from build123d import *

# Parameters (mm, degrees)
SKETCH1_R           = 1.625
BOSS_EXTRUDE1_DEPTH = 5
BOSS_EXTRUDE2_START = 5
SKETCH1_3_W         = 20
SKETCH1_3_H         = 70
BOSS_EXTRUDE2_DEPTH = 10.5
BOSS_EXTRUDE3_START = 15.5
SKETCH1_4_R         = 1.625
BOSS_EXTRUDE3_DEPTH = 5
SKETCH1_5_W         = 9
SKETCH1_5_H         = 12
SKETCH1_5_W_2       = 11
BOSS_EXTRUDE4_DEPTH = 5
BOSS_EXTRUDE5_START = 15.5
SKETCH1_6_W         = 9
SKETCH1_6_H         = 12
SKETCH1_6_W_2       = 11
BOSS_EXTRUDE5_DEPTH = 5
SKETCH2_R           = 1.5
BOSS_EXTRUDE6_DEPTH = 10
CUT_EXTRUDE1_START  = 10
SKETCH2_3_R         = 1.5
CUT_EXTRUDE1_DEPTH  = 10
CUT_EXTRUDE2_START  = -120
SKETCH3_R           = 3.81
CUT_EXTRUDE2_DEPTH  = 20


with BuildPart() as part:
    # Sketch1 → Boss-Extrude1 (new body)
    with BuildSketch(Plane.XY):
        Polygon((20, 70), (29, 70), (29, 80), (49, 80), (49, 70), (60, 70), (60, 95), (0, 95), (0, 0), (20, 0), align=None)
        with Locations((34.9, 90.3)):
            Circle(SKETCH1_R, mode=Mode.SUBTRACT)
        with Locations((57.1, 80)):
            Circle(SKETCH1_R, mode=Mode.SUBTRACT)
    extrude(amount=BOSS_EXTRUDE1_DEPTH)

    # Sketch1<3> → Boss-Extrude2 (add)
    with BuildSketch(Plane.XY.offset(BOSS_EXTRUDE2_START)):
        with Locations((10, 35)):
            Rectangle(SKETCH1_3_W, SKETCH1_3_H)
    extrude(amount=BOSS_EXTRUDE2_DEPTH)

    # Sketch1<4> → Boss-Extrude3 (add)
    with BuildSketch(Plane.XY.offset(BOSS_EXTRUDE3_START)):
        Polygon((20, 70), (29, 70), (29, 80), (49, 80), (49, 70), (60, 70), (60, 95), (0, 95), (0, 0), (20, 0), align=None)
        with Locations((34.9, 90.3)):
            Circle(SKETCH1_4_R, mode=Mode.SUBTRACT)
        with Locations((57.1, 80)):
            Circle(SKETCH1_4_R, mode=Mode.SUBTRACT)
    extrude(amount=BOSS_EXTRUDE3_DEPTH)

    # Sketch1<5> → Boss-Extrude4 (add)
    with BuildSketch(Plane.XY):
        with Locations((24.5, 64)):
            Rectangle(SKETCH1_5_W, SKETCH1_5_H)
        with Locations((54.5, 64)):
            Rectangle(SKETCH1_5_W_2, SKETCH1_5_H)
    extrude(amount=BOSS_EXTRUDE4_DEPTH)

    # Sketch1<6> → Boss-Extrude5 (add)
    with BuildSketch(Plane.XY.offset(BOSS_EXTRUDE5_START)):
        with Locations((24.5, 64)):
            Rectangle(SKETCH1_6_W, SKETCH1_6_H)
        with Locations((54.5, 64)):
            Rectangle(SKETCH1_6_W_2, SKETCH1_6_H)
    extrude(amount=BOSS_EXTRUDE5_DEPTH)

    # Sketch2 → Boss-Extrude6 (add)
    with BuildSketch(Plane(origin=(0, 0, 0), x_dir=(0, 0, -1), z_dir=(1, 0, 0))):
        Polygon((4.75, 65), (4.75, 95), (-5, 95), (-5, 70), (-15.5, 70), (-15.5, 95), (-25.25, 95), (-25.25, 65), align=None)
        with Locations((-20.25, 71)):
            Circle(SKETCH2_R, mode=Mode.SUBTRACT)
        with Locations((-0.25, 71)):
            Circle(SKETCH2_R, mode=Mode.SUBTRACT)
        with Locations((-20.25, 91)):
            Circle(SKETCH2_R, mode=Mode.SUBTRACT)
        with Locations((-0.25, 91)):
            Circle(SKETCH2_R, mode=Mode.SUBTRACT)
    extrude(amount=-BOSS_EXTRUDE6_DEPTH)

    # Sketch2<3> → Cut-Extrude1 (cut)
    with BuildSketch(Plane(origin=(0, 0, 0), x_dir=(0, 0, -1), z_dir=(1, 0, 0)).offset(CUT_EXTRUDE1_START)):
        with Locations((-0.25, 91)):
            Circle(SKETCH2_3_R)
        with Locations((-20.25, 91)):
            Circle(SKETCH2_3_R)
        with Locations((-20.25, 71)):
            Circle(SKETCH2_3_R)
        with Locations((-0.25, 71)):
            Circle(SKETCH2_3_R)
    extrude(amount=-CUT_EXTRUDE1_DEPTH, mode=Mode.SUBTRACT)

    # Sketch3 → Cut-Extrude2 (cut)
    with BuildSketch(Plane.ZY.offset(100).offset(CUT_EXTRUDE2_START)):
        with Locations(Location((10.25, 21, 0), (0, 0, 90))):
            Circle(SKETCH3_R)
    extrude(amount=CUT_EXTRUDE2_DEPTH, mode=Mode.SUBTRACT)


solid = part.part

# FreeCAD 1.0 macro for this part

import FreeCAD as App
import Part
import Sketcher

V = App.Vector

doc = App.newDocument("Part")
params = doc.addObject("Spreadsheet::Sheet", "Params")
for row, (alias, value) in enumerate([
    ("sketch1_diameter", "3.25 mm"),
    ("sketch1_width", "9 mm"),
    ("sketch1_width2", "20 mm"),
    ("sketch1_width3", "11 mm"),
    ("sketch1_height", "10 mm"),
    ("pad1_length", "5 mm"),
    ("sketch2_width", "20 mm"),
    ("sketch2_height", "70 mm"),
    ("pad2_length", "10.5 mm"),
    ("sketch3_diameter", "3.25 mm"),
    ("sketch3_width", "9 mm"),
    ("sketch3_width2", "20 mm"),
    ("sketch3_width3", "11 mm"),
    ("sketch3_height", "10 mm"),
    ("pad3_length", "5 mm"),
    ("sketch4_width", "9 mm"),
    ("sketch4_width2", "11 mm"),
    ("sketch4_height", "12 mm"),
    ("pad4_length", "5 mm"),
    ("sketch5_width", "9 mm"),
    ("sketch5_width2", "11 mm"),
    ("sketch5_height", "12 mm"),
    ("pad5_length", "5 mm"),
    ("sketch6_diameter", "3 mm"),
    ("sketch6_width", "30 mm"),
    ("sketch6_width2", "25 mm"),
    ("sketch6_height", "10.5 mm"),
    ("pad6_length", "10 mm"),
    ("sketch7_diameter", "3 mm"),
    ("pocket1_length", "10 mm"),
    ("sketch8_diameter", "7.62 mm"),
    ("pocket2_length", "20 mm"),
], start=1):
    params.set(f"A{row}", alias)
    params.set(f"B{row}", "=" + value)
    params.setAlias(f"B{row}", alias)

body = doc.addObject("PartDesign::Body", "Body")

# Sketch on XY plane
sketch1 = body.newObject("Sketcher::SketchObject", "Sketch")
sketch1.AttachmentSupport = (doc.getObject("XY_Plane"), [""])
sketch1.MapMode = "FlatFace"
sketch1.addGeometry([
    Part.LineSegment(V(20, 70, 0), V(29, 70, 0)),  # 0
    Part.LineSegment(V(29, 70, 0), V(29, 80, 0)),  # 1
    Part.LineSegment(V(29, 80, 0), V(49, 80, 0)),  # 2
    Part.LineSegment(V(49, 80, 0), V(49, 70, 0)),  # 3
    Part.LineSegment(V(49, 70, 0), V(60, 70, 0)),  # 4
    Part.LineSegment(V(60, 70, 0), V(60, 95, 0)),  # 5
    Part.LineSegment(V(60, 95, 0), V(0, 95, 0)),  # 6
    Part.LineSegment(V(0, 95, 0), V(0, 0, 0)),  # 7
    Part.LineSegment(V(0, 0, 0), V(20, 0, 0)),  # 8
    Part.LineSegment(V(20, 0, 0), V(20, 70, 0)),  # 9
    Part.Circle(V(57.1, 80, 0), V(0, 0, 1), 1.625),  # 10
    Part.Circle(V(34.9, 90.3, 0), V(0, 0, 1), 1.625),  # 11
], False)
sketch1.addConstraint([
    Sketcher.Constraint("Coincident", 0, 2, 1, 1),
    Sketcher.Constraint("Coincident", 1, 2, 2, 1),
    Sketcher.Constraint("Coincident", 2, 2, 3, 1),
    Sketcher.Constraint("Coincident", 3, 2, 4, 1),
    Sketcher.Constraint("Coincident", 4, 2, 5, 1),
    Sketcher.Constraint("Coincident", 5, 2, 6, 1),
    Sketcher.Constraint("Coincident", 6, 2, 7, 1),
    Sketcher.Constraint("Coincident", 7, 2, 8, 1),
    Sketcher.Constraint("Coincident", 8, 2, 9, 1),
    Sketcher.Constraint("Coincident", 9, 2, 0, 1),
    Sketcher.Constraint("Horizontal", 0),
    Sketcher.Constraint("Vertical", 1),
    Sketcher.Constraint("Horizontal", 2),
    Sketcher.Constraint("Vertical", 3),
    Sketcher.Constraint("Horizontal", 4),
    Sketcher.Constraint("Vertical", 5),
    Sketcher.Constraint("Horizontal", 6),
    Sketcher.Constraint("Vertical", 7),
    Sketcher.Constraint("Horizontal", 8),
    Sketcher.Constraint("Vertical", 9),
    Sketcher.Constraint("Coincident", 7, 2, -1, 1),
    Sketcher.Constraint("Equal", 10, 11),
    Sketcher.Constraint("Horizontal", 10, 3, 1, 2),
    Sketcher.Constraint("Horizontal", 0, 2, 3, 2),
    Sketcher.Constraint("Equal", 2, 8),
    Sketcher.Constraint("Diameter", 10, 3.25),
    Sketcher.Constraint("DistanceX", 0, 1, 0, 2, 9.0),
    Sketcher.Constraint("DistanceX", 2, 1, 2, 2, 20.0),
    Sketcher.Constraint("DistanceX", 4, 1, 4, 2, 11.0),
    Sketcher.Constraint("DistanceY", 1, 1, 1, 2, 10.0),
    Sketcher.Constraint("DistanceY", 5, 1, 5, 2, 25.0),
    Sketcher.Constraint("DistanceY", 7, 2, 7, 1, 95.0),
    Sketcher.Constraint("DistanceX", -1, 1, 10, 3, 57.1),
    Sketcher.Constraint("DistanceX", -1, 1, 11, 3, 34.9),
    Sketcher.Constraint("DistanceY", -1, 1, 11, 3, 90.3),
])
sketch1.setExpression("Constraints[25]", "Params.sketch1_diameter")
sketch1.setExpression("Constraints[26]", "Params.sketch1_width")
sketch1.setExpression("Constraints[27]", "Params.sketch1_width2")
sketch1.setExpression("Constraints[28]", "Params.sketch1_width3")
sketch1.setExpression("Constraints[29]", "Params.sketch1_height")
pad1 = body.newObject("PartDesign::Pad", "Pad")
pad1.Profile = sketch1
pad1.setExpression("Length", "Params.pad1_length")

# Sketch on XY plane
sketch2 = body.newObject("Sketcher::SketchObject", "Sketch001")
sketch2.AttachmentSupport = (doc.getObject("XY_Plane"), [""])
sketch2.MapMode = "FlatFace"
sketch2.AttachmentOffset = App.Placement(V(0, 0, 5), App.Rotation())
sketch2.addGeometry([
    Part.LineSegment(V(0, 70, 0), V(0, 0, 0)),
    Part.LineSegment(V(0, 0, 0), V(20, 0, 0)),
    Part.LineSegment(V(20, 0, 0), V(20, 70, 0)),
    Part.LineSegment(V(20, 70, 0), V(0, 70, 0)),
], False)
sketch2.addConstraint([
    Sketcher.Constraint("Coincident", 0, 2, 1, 1),
    Sketcher.Constraint("Coincident", 1, 2, 2, 1),
    Sketcher.Constraint("Coincident", 2, 2, 3, 1),
    Sketcher.Constraint("Coincident", 3, 2, 0, 1),
    Sketcher.Constraint("Vertical", 0),
    Sketcher.Constraint("Horizontal", 1),
    Sketcher.Constraint("Vertical", 2),
    Sketcher.Constraint("Horizontal", 3),
    Sketcher.Constraint("Coincident", 0, 2, -1, 1),
    Sketcher.Constraint("DistanceX", 1, 1, 1, 2, 20.0),
    Sketcher.Constraint("DistanceY", 0, 2, 0, 1, 70.0),
])
sketch2.setExpression("Constraints[9]", "Params.sketch2_width")
sketch2.setExpression("Constraints[10]", "Params.sketch2_height")
pad2 = body.newObject("PartDesign::Pad", "Pad001")
pad2.Profile = sketch2
pad2.setExpression("Length", "Params.pad2_length")

# Sketch on XY plane
sketch3 = body.newObject("Sketcher::SketchObject", "Sketch002")
sketch3.AttachmentSupport = (doc.getObject("XY_Plane"), [""])
sketch3.MapMode = "FlatFace"
sketch3.AttachmentOffset = App.Placement(V(0, 0, 15.5), App.Rotation())
sketch3.addGeometry([
    Part.LineSegment(V(20, 70, 0), V(29, 70, 0)),  # 0
    Part.LineSegment(V(29, 70, 0), V(29, 80, 0)),  # 1
    Part.LineSegment(V(29, 80, 0), V(49, 80, 0)),  # 2
    Part.LineSegment(V(49, 80, 0), V(49, 70, 0)),  # 3
    Part.LineSegment(V(49, 70, 0), V(60, 70, 0)),  # 4
    Part.LineSegment(V(60, 70, 0), V(60, 95, 0)),  # 5
    Part.LineSegment(V(60, 95, 0), V(0, 95, 0)),  # 6
    Part.LineSegment(V(0, 95, 0), V(0, 0, 0)),  # 7
    Part.LineSegment(V(0, 0, 0), V(20, 0, 0)),  # 8
    Part.LineSegment(V(20, 0, 0), V(20, 70, 0)),  # 9
    Part.Circle(V(57.1, 80, 0), V(0, 0, 1), 1.625),  # 10
    Part.Circle(V(34.9, 90.3, 0), V(0, 0, 1), 1.625),  # 11
], False)
sketch3.addConstraint([
    Sketcher.Constraint("Coincident", 0, 2, 1, 1),
    Sketcher.Constraint("Coincident", 1, 2, 2, 1),
    Sketcher.Constraint("Coincident", 2, 2, 3, 1),
    Sketcher.Constraint("Coincident", 3, 2, 4, 1),
    Sketcher.Constraint("Coincident", 4, 2, 5, 1),
    Sketcher.Constraint("Coincident", 5, 2, 6, 1),
    Sketcher.Constraint("Coincident", 6, 2, 7, 1),
    Sketcher.Constraint("Coincident", 7, 2, 8, 1),
    Sketcher.Constraint("Coincident", 8, 2, 9, 1),
    Sketcher.Constraint("Coincident", 9, 2, 0, 1),
    Sketcher.Constraint("Horizontal", 0),
    Sketcher.Constraint("Vertical", 1),
    Sketcher.Constraint("Horizontal", 2),
    Sketcher.Constraint("Vertical", 3),
    Sketcher.Constraint("Horizontal", 4),
    Sketcher.Constraint("Vertical", 5),
    Sketcher.Constraint("Horizontal", 6),
    Sketcher.Constraint("Vertical", 7),
    Sketcher.Constraint("Horizontal", 8),
    Sketcher.Constraint("Vertical", 9),
    Sketcher.Constraint("Coincident", 7, 2, -1, 1),
    Sketcher.Constraint("Equal", 10, 11),
    Sketcher.Constraint("Horizontal", 10, 3, 1, 2),
    Sketcher.Constraint("Horizontal", 0, 2, 3, 2),
    Sketcher.Constraint("Equal", 2, 8),
    Sketcher.Constraint("Diameter", 10, 3.25),
    Sketcher.Constraint("DistanceX", 0, 1, 0, 2, 9.0),
    Sketcher.Constraint("DistanceX", 2, 1, 2, 2, 20.0),
    Sketcher.Constraint("DistanceX", 4, 1, 4, 2, 11.0),
    Sketcher.Constraint("DistanceY", 1, 1, 1, 2, 10.0),
    Sketcher.Constraint("DistanceY", 5, 1, 5, 2, 25.0),
    Sketcher.Constraint("DistanceY", 7, 2, 7, 1, 95.0),
    Sketcher.Constraint("DistanceX", -1, 1, 10, 3, 57.1),
    Sketcher.Constraint("DistanceX", -1, 1, 11, 3, 34.9),
    Sketcher.Constraint("DistanceY", -1, 1, 11, 3, 90.3),
])
sketch3.setExpression("Constraints[25]", "Params.sketch3_diameter")
sketch3.setExpression("Constraints[26]", "Params.sketch3_width")
sketch3.setExpression("Constraints[27]", "Params.sketch3_width2")
sketch3.setExpression("Constraints[28]", "Params.sketch3_width3")
sketch3.setExpression("Constraints[29]", "Params.sketch3_height")
pad3 = body.newObject("PartDesign::Pad", "Pad002")
pad3.Profile = sketch3
pad3.setExpression("Length", "Params.pad3_length")

# Sketch on XY plane
sketch4 = body.newObject("Sketcher::SketchObject", "Sketch003")
sketch4.AttachmentSupport = (doc.getObject("XY_Plane"), [""])
sketch4.MapMode = "FlatFace"
sketch4.addGeometry([
    Part.LineSegment(V(20, 70, 0), V(20, 58, 0)),  # 0
    Part.LineSegment(V(20, 58, 0), V(29, 58, 0)),  # 1
    Part.LineSegment(V(29, 58, 0), V(29, 70, 0)),  # 2
    Part.LineSegment(V(29, 70, 0), V(20, 70, 0)),  # 3
    Part.LineSegment(V(49, 70, 0), V(49, 58, 0)),  # 4
    Part.LineSegment(V(49, 58, 0), V(60, 58, 0)),  # 5
    Part.LineSegment(V(60, 58, 0), V(60, 70, 0)),  # 6
    Part.LineSegment(V(60, 70, 0), V(49, 70, 0)),  # 7
], False)
sketch4.addConstraint([
    Sketcher.Constraint("Coincident", 0, 2, 1, 1),
    Sketcher.Constraint("Coincident", 1, 2, 2, 1),
    Sketcher.Constraint("Coincident", 2, 2, 3, 1),
    Sketcher.Constraint("Coincident", 3, 2, 0, 1),
    Sketcher.Constraint("Coincident", 4, 2, 5, 1),
    Sketcher.Constraint("Coincident", 5, 2, 6, 1),
    Sketcher.Constraint("Coincident", 6, 2, 7, 1),
    Sketcher.Constraint("Coincident", 7, 2, 4, 1),
    Sketcher.Constraint("Vertical", 0),
    Sketcher.Constraint("Horizontal", 1),
    Sketcher.Constraint("Vertical", 2),
    Sketcher.Constraint("Horizontal", 3),
    Sketcher.Constraint("Vertical", 4),
    Sketcher.Constraint("Horizontal", 5),
    Sketcher.Constraint("Vertical", 6),
    Sketcher.Constraint("Horizontal", 7),
    Sketcher.Constraint("Horizontal", 1, 2, 4, 2),
    Sketcher.Constraint("Horizontal", 3, 2, 6, 2),
    Sketcher.Constraint("DistanceX", 1, 1, 1, 2, 9.0),
    Sketcher.Constraint("DistanceX", 5, 1, 5, 2, 11.0),
    Sketcher.Constraint("DistanceY", 0, 2, 0, 1, 12.0),
    Sketcher.Constraint("DistanceX", -1, 1, 0, 2, 20.0),
    Sketcher.Constraint("DistanceY", -1, 1, 0, 2, 58.0),
    Sketcher.Constraint("DistanceX", -1, 1, 4, 2, 49.0),
])
sketch4.setExpression("Constraints[18]", "Params.sketch4_width")
sketch4.setExpression("Constraints[19]", "Params.sketch4_width2")
sketch4.setExpression("Constraints[20]", "Params.sketch4_height")
pad4 = body.newObject("PartDesign::Pad", "Pad003")
pad4.Profile = sketch4
pad4.setExpression("Length", "Params.pad4_length")

# Sketch on XY plane
sketch5 = body.newObject("Sketcher::SketchObject", "Sketch004")
sketch5.AttachmentSupport = (doc.getObject("XY_Plane"), [""])
sketch5.MapMode = "FlatFace"
sketch5.AttachmentOffset = App.Placement(V(0, 0, 15.5), App.Rotation())
sketch5.addGeometry([
    Part.LineSegment(V(20, 70, 0), V(20, 58, 0)),  # 0
    Part.LineSegment(V(20, 58, 0), V(29, 58, 0)),  # 1
    Part.LineSegment(V(29, 58, 0), V(29, 70, 0)),  # 2
    Part.LineSegment(V(29, 70, 0), V(20, 70, 0)),  # 3
    Part.LineSegment(V(49, 70, 0), V(49, 58, 0)),  # 4
    Part.LineSegment(V(49, 58, 0), V(60, 58, 0)),  # 5
    Part.LineSegment(V(60, 58, 0), V(60, 70, 0)),  # 6
    Part.LineSegment(V(60, 70, 0), V(49, 70, 0)),  # 7
], False)
sketch5.addConstraint([
    Sketcher.Constraint("Coincident", 0, 2, 1, 1),
    Sketcher.Constraint("Coincident", 1, 2, 2, 1),
    Sketcher.Constraint("Coincident", 2, 2, 3, 1),
    Sketcher.Constraint("Coincident", 3, 2, 0, 1),
    Sketcher.Constraint("Coincident", 4, 2, 5, 1),
    Sketcher.Constraint("Coincident", 5, 2, 6, 1),
    Sketcher.Constraint("Coincident", 6, 2, 7, 1),
    Sketcher.Constraint("Coincident", 7, 2, 4, 1),
    Sketcher.Constraint("Vertical", 0),
    Sketcher.Constraint("Horizontal", 1),
    Sketcher.Constraint("Vertical", 2),
    Sketcher.Constraint("Horizontal", 3),
    Sketcher.Constraint("Vertical", 4),
    Sketcher.Constraint("Horizontal", 5),
    Sketcher.Constraint("Vertical", 6),
    Sketcher.Constraint("Horizontal", 7),
    Sketcher.Constraint("Horizontal", 1, 2, 4, 2),
    Sketcher.Constraint("Horizontal", 3, 2, 6, 2),
    Sketcher.Constraint("DistanceX", 1, 1, 1, 2, 9.0),
    Sketcher.Constraint("DistanceX", 5, 1, 5, 2, 11.0),
    Sketcher.Constraint("DistanceY", 0, 2, 0, 1, 12.0),
    Sketcher.Constraint("DistanceX", -1, 1, 0, 2, 20.0),
    Sketcher.Constraint("DistanceY", -1, 1, 0, 2, 58.0),
    Sketcher.Constraint("DistanceX", -1, 1, 4, 2, 49.0),
])
sketch5.setExpression("Constraints[18]", "Params.sketch5_width")
sketch5.setExpression("Constraints[19]", "Params.sketch5_width2")
sketch5.setExpression("Constraints[20]", "Params.sketch5_height")
pad5 = body.newObject("PartDesign::Pad", "Pad004")
pad5.Profile = sketch5
pad5.setExpression("Length", "Params.pad5_length")

# Sketch on YZ plane
sketch6 = body.newObject("Sketcher::SketchObject", "Sketch005")
sketch6.AttachmentSupport = (doc.getObject("YZ_Plane"), [""])
sketch6.MapMode = "FlatFace"
sketch6.addGeometry([
    Part.LineSegment(V(65, -4.75, 0), V(95, -4.75, 0)),  # 0
    Part.LineSegment(V(95, -4.75, 0), V(95, 5, 0)),  # 1
    Part.LineSegment(V(95, 5, 0), V(70, 5, 0)),  # 2
    Part.LineSegment(V(70, 5, 0), V(70, 15.5, 0)),  # 3
    Part.LineSegment(V(70, 15.5, 0), V(95, 15.5, 0)),  # 4
    Part.LineSegment(V(95, 15.5, 0), V(95, 25.25, 0)),  # 5
    Part.LineSegment(V(95, 25.25, 0), V(65, 25.25, 0)),  # 6
    Part.LineSegment(V(65, 25.25, 0), V(65, -4.75, 0)),  # 7
    Part.Circle(V(71, 20.25, 0), V(0, 0, 1), 1.5),  # 8
    Part.Circle(V(71, 0.25, 0), V(0, 0, 1), 1.5),  # 9
    Part.Circle(V(91, 20.25, 0), V(0, 0, 1), 1.5),  # 10
    Part.Circle(V(91, 0.25, 0), V(0, 0, 1), 1.5),  # 11
], False)
sketch6.addConstraint([
    Sketcher.Constraint("Coincident", 0, 2, 1, 1),
    Sketcher.Constraint("Coincident", 1, 2, 2, 1),
    Sketcher.Constraint("Coincident", 2, 2, 3, 1),
    Sketcher.Constraint("Coincident", 3, 2, 4, 1),
    Sketcher.Constraint("Coincident", 4, 2, 5, 1),
    Sketcher.Constraint("Coincident", 5, 2, 6, 1),
    Sketcher.Constraint("Coincident", 6, 2, 7, 1),
    Sketcher.Constraint("Coincident", 7, 2, 0, 1),
    Sketcher.Constraint("Horizontal", 0),
    Sketcher.Constraint("Vertical", 1),
    Sketcher.Constraint("Horizontal", 2),
    Sketcher.Constraint("Vertical", 3),
    Sketcher.Constraint("Horizontal", 4),
    Sketcher.Constraint("Vertical", 5),
    Sketcher.Constraint("Horizontal", 6),
    Sketcher.Constraint("Vertical", 7),
    Sketcher.Constraint("Equal", 8, 9),
    Sketcher.Constraint("Equal", 9, 10),
    Sketcher.Constraint("Equal", 10, 11),
    Sketcher.Constraint("Horizontal", 8, 3, 10, 3),
    Sketcher.Constraint("Horizontal", 9, 3, 11, 3),
    Sketcher.Constraint("Vertical", 8, 3, 9, 3),
    Sketcher.Constraint("Vertical", 10, 3, 11, 3),
    Sketcher.Constraint("Vertical", 1, 2, 4, 2),
    Sketcher.Constraint("Equal", 1, 5),
    Sketcher.Constraint("Equal", 6, 7),
    Sketcher.Constraint("Diameter", 8, 3.0),
    Sketcher.Constraint("DistanceX", 0, 1, 0, 2, 30.0),
    Sketcher.Constraint("DistanceX", 2, 2, 2, 1, 25.0),
    Sketcher.Constraint("DistanceY", 3, 1, 3, 2, 10.5),
    Sketcher.Constraint("DistanceX", -1, 1, 8, 3, 71.0),
    Sketcher.Constraint("DistanceX", -1, 1, 10, 3, 91.0),
    Sketcher.Constraint("DistanceX", -1, 1, 0, 2, 95.0),
    Sketcher.Constraint("DistanceY", -1, 1, 1, 2, 5.0),
    Sketcher.Constraint("DistanceY", 9, 3, 8, 3, 20.0),
    Sketcher.Constraint("DistanceY", 0, 2, 11, 3, 5.0),
])
sketch6.setExpression("Constraints[26]", "Params.sketch6_diameter")
sketch6.setExpression("Constraints[27]", "Params.sketch6_width")
sketch6.setExpression("Constraints[28]", "Params.sketch6_width2")
sketch6.setExpression("Constraints[29]", "Params.sketch6_height")
pad6 = body.newObject("PartDesign::Pad", "Pad005")
pad6.Profile = sketch6
pad6.setExpression("Length", "Params.pad6_length")
pad6.Reversed = True

# Sketch on YZ plane
sketch7 = body.newObject("Sketcher::SketchObject", "Sketch006")
sketch7.AttachmentSupport = (doc.getObject("YZ_Plane"), [""])
sketch7.MapMode = "FlatFace"
sketch7.AttachmentOffset = App.Placement(V(0, 0, 10), App.Rotation())
sketch7.addGeometry([
    Part.Circle(V(91, 0.25, 0), V(0, 0, 1), 1.5),
    Part.Circle(V(91, 20.25, 0), V(0, 0, 1), 1.5),
    Part.Circle(V(71, 20.25, 0), V(0, 0, 1), 1.5),
    Part.Circle(V(71, 0.25, 0), V(0, 0, 1), 1.5),
], False)
sketch7.addConstraint([
    Sketcher.Constraint("Equal", 0, 1),
    Sketcher.Constraint("Equal", 1, 2),
    Sketcher.Constraint("Equal", 2, 3),
    Sketcher.Constraint("Horizontal", 1, 3, 2, 3),
    Sketcher.Constraint("Horizontal", 0, 3, 3, 3),
    Sketcher.Constraint("Vertical", 0, 3, 1, 3),
    Sketcher.Constraint("Vertical", 2, 3, 3, 3),
    Sketcher.Constraint("Diameter", 0, 3.0),
    Sketcher.Constraint("DistanceX", -1, 1, 0, 3, 91.0),
    Sketcher.Constraint("DistanceX", -1, 1, 2, 3, 71.0),
    Sketcher.Constraint("DistanceY", 0, 3, 1, 3, 20.0),
    Sketcher.Constraint("DistanceY", -1, 1, 0, 3, 0.25),
])
sketch7.setExpression("Constraints[7]", "Params.sketch7_diameter")
pocket1 = body.newObject("PartDesign::Pocket", "Pocket")
pocket1.Profile = sketch7
pocket1.setExpression("Length", "Params.pocket1_length")

# Sketch on YZ plane
sketch8 = body.newObject("Sketcher::SketchObject", "Sketch007")
sketch8.AttachmentSupport = (doc.getObject("YZ_Plane"), [""])
sketch8.MapMode = "FlatFace"
sketch8.AttachmentOffset = App.Placement(V(0, 0, 20), App.Rotation())
sketch8.addGeometry(Part.Circle(V(21, 10.25, 0), V(0, 0, 1), 3.81), False)
sketch8.addConstraint([
    Sketcher.Constraint("Diameter", 0, 7.62),
    Sketcher.Constraint("DistanceX", -1, 1, 0, 3, 21.0),
    Sketcher.Constraint("DistanceY", -1, 1, 0, 3, 10.25),
])
sketch8.setExpression("Constraints[0]", "Params.sketch8_diameter")
pocket2 = body.newObject("PartDesign::Pocket", "Pocket001")
pocket2.Profile = sketch8
pocket2.setExpression("Length", "Params.pocket2_length")

doc.recompute()
